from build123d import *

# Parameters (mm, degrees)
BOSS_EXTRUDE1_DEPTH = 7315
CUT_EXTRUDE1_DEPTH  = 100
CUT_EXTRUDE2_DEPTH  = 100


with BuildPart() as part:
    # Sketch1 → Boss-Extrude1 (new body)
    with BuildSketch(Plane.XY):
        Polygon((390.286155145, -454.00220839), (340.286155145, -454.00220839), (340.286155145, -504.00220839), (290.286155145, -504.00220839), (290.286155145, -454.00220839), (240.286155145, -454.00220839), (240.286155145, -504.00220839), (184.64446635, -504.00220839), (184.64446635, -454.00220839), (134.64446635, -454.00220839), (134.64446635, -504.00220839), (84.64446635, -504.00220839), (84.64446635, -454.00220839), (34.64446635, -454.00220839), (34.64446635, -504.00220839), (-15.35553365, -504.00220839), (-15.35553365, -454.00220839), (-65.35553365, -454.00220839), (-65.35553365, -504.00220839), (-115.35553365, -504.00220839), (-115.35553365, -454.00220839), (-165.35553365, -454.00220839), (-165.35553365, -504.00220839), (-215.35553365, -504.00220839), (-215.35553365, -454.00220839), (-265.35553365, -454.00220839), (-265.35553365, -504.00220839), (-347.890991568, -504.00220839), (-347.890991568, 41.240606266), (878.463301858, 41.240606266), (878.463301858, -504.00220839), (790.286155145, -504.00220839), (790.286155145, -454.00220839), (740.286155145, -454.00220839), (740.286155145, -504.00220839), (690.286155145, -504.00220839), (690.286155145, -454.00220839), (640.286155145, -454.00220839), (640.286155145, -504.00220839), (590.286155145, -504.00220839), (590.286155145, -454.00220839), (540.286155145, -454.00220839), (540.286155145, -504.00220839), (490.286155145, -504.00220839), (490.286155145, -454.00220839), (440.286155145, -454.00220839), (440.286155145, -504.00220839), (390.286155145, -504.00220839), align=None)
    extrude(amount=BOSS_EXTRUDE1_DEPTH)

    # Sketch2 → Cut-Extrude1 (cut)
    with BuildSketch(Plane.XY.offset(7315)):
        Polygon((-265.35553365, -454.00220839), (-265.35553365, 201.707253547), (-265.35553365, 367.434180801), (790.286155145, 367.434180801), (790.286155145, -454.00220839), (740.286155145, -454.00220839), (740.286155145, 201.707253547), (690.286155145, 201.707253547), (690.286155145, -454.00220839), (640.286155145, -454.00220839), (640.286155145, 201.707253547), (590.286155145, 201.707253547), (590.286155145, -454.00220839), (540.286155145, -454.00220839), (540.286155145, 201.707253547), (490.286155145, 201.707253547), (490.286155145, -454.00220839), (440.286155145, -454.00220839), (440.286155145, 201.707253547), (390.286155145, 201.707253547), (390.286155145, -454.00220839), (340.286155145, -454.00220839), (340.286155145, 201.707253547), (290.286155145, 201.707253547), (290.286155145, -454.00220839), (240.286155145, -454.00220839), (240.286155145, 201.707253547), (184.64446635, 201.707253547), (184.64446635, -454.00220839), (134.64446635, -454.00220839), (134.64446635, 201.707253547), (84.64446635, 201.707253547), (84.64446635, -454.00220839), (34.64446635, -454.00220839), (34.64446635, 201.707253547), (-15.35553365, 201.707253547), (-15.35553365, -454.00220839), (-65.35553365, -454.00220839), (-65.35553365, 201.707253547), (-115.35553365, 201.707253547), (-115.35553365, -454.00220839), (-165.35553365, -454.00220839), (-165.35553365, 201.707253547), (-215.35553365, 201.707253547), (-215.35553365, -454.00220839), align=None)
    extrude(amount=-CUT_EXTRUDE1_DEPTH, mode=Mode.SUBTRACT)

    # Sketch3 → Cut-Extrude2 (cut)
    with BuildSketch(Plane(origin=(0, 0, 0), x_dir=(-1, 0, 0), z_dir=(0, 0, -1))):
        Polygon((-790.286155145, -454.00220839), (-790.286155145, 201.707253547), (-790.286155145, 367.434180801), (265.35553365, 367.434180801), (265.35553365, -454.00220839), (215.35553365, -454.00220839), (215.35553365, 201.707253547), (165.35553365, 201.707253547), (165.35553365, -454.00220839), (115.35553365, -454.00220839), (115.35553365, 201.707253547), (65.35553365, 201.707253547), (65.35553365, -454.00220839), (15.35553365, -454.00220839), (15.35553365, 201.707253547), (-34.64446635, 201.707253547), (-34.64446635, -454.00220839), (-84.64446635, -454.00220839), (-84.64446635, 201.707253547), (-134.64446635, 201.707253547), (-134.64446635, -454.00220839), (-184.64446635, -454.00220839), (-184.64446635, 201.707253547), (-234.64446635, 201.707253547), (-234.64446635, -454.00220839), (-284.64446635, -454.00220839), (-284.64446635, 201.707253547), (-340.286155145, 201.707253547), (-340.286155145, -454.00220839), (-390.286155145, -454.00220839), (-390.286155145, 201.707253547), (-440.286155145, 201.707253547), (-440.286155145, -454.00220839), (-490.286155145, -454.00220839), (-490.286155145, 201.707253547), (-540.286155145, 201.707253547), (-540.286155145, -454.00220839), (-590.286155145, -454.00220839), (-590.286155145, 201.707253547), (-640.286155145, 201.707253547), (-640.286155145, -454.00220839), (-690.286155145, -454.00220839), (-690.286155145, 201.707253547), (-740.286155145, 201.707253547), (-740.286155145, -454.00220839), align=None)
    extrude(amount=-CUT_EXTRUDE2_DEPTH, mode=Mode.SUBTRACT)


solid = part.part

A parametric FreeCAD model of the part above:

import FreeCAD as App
import Part
import Sketcher
from FreeCAD import Vector


def add_polygon(sketch, points):
    """Adds a closed chain of lines whose ends are joined by coincident constraints."""
    first, n = sketch.GeometryCount, len(points)
    for a, b in zip(points, points[1:] + points[:1]):
        sketch.addGeometry(Part.LineSegment(App.Vector(*a, 0), App.Vector(*b, 0)), False)
    for i in range(n):
        sketch.addConstraint(Sketcher.Constraint("Coincident", first + i, 2, first + (i + 1) % n, 1))

doc = App.newDocument("Part")
body = doc.addObject("PartDesign::Body", "Body")

# Sketch on XY plane
sketch1 = doc.addObject("Sketcher::SketchObject", "Sketch")
body.addObject(sketch1)
sketch1.AttachmentSupport = (doc.XY_Plane, [""])
sketch1.MapMode = "FlatFace"
add_polygon(sketch1, [(340, -454), (390, -454), (390, -504), (440, -504), (440, -454), (490, -454), (490, -504), (540, -504), (540, -454), (590, -454), (590, -504), (640, -504), (640, -454), (690, -454), (690, -504), (740, -504), (740, -454), (790, -454), (790, -504), (878, -504), (878, 41), (-348, 41), (-348, -504), (-265, -504), (-265, -454), (-215, -454), (-215, -504), (-165, -504), (-165, -454), (-115, -454), (-115, -504), (-65, -504), (-65, -454), (-15, -454), (-15, -504), (35, -504), (35, -454), (85, -454), (85, -504), (135, -504), (135, -454), (185, -454), (185, -504), (240, -504), (240, -454), (290, -454), (290, -504), (340, -504)])  # lines 0-47
sketch1.addConstraint([
    Sketcher.Constraint("Horizontal", 0),
    Sketcher.Constraint("Vertical", 1),
    Sketcher.Constraint("Horizontal", 2),
    Sketcher.Constraint("Vertical", 3),
    Sketcher.Constraint("Horizontal", 4),
    Sketcher.Constraint("Vertical", 5),
    Sketcher.Constraint("Horizontal", 6),
    Sketcher.Constraint("Vertical", 7),
    Sketcher.Constraint("Horizontal", 8),
    Sketcher.Constraint("Vertical", 9),
    Sketcher.Constraint("Horizontal", 10),
    Sketcher.Constraint("Vertical", 11),
    Sketcher.Constraint("Horizontal", 12),
    Sketcher.Constraint("Vertical", 13),
    Sketcher.Constraint("Horizontal", 14),
    Sketcher.Constraint("Vertical", 15),
    Sketcher.Constraint("Horizontal", 16),
    Sketcher.Constraint("Vertical", 17),
    Sketcher.Constraint("Horizontal", 18),
    Sketcher.Constraint("Vertical", 19),
    Sketcher.Constraint("Horizontal", 20),
    Sketcher.Constraint("Vertical", 21),
    Sketcher.Constraint("Horizontal", 22),
    Sketcher.Constraint("Vertical", 23),
    Sketcher.Constraint("Horizontal", 24),
    Sketcher.Constraint("Vertical", 25),
    Sketcher.Constraint("Horizontal", 26),
    Sketcher.Constraint("Vertical", 27),
    Sketcher.Constraint("Horizontal", 28),
    Sketcher.Constraint("Vertical", 29),
    Sketcher.Constraint("Horizontal", 30),
    Sketcher.Constraint("Vertical", 31),
    Sketcher.Constraint("Horizontal", 32),
    Sketcher.Constraint("Vertical", 33),
    Sketcher.Constraint("Horizontal", 34),
    Sketcher.Constraint("Vertical", 35),
    Sketcher.Constraint("Horizontal", 36),
    Sketcher.Constraint("Vertical", 37),
    Sketcher.Constraint("Horizontal", 38),
    Sketcher.Constraint("Vertical", 39),
    Sketcher.Constraint("Horizontal", 40),
    Sketcher.Constraint("Vertical", 41),
    Sketcher.Constraint("Horizontal", 42),
    Sketcher.Constraint("Vertical", 43),
    Sketcher.Constraint("Horizontal", 44),
    Sketcher.Constraint("Vertical", 45),
    Sketcher.Constraint("Horizontal", 46),
    Sketcher.Constraint("Vertical", 47),
    Sketcher.Constraint("Horizontal", 0, 2, 3, 2),
    Sketcher.Constraint("Horizontal", 2, 2, 5, 2),
    Sketcher.Constraint("Horizontal", 4, 2, 7, 2),
    Sketcher.Constraint("Horizontal", 6, 2, 9, 2),
    Sketcher.Constraint("Horizontal", 8, 2, 11, 2),
    Sketcher.Constraint("Horizontal", 10, 2, 13, 2),
    Sketcher.Constraint("Horizontal", 12, 2, 15, 2),
    Sketcher.Constraint("Horizontal", 14, 2, 17, 2),
    Sketcher.Constraint("Horizontal", 18, 2, 21, 2),
    Sketcher.Constraint("Horizontal", 16, 2, 23, 2),
    Sketcher.Constraint("Horizontal", 22, 2, 25, 2),
    Sketcher.Constraint("Horizontal", 24, 2, 27, 2),
    Sketcher.Constraint("Horizontal", 26, 2, 29, 2),
    Sketcher.Constraint("Horizontal", 28, 2, 31, 2),
    Sketcher.Constraint("Horizontal", 30, 2, 33, 2),
    Sketcher.Constraint("Horizontal", 32, 2, 35, 2),
    Sketcher.Constraint("Horizontal", 34, 2, 37, 2),
    Sketcher.Constraint("Horizontal", 36, 2, 39, 2),
    Sketcher.Constraint("Horizontal", 38, 2, 41, 2),
    Sketcher.Constraint("Horizontal", 40, 2, 43, 2),
    Sketcher.Constraint("Horizontal", 42, 2, 45, 2),
    Sketcher.Constraint("Equal", 0, 2),
    Sketcher.Constraint("Equal", 2, 4),
    Sketcher.Constraint("Equal", 4, 6),
    Sketcher.Constraint("Equal", 6, 8),
    Sketcher.Constraint("Equal", 8, 10),
    Sketcher.Constraint("Equal", 10, 12),
    Sketcher.Constraint("Equal", 12, 14),
    Sketcher.Constraint("Equal", 14, 16),
    Sketcher.Constraint("Equal", 16, 24),
    Sketcher.Constraint("Equal", 24, 26),
    Sketcher.Constraint("Equal", 26, 28),
    Sketcher.Constraint("Equal", 28, 30),
    Sketcher.Constraint("Equal", 30, 32),
    Sketcher.Constraint("Equal", 32, 34),
    Sketcher.Constraint("Equal", 34, 36),
    Sketcher.Constraint("Equal", 36, 38),
    Sketcher.Constraint("Equal", 38, 40),
    Sketcher.Constraint("Equal", 40, 44),
    Sketcher.Constraint("Equal", 44, 46),
    Sketcher.Constraint("Equal", 46, 1),
    Sketcher.Constraint("DistanceX", 0, 1, 0, 2, 50.0),
    Sketcher.Constraint("DistanceX", 42, 1, 42, 2, 55.641689),
    Sketcher.Constraint("DistanceX", -1, 1, 18, 2, 878.463302),
    Sketcher.Constraint("DistanceX", 18, 1, 18, 2, 88.177147),
    Sketcher.Constraint("DistanceX", 20, 2, 20, 1, 1226.354293),
    Sketcher.Constraint("DistanceY", 19, 1, 19, 2, 545.242815),
    Sketcher.Constraint("DistanceY", 0, 2, -1, 1, 454.002208),
])
pad1 = doc.addObject("PartDesign::Pad", "Pad")
body.addObject(pad1)
pad1.Profile = sketch1
pad1.Length = 7315

# Sketch on XY plane
sketch2 = doc.addObject("Sketcher::SketchObject", "Sketch001")
body.addObject(sketch2)
sketch2.AttachmentSupport = (doc.XY_Plane, [""])
sketch2.MapMode = "FlatFace"
sketch2.AttachmentOffset = App.Placement(Vector(0, 0, 7315), App.Rotation())
add_polygon(sketch2, [(-265, 367), (-265, -454), (-215, -454), (-215, 202), (-165, 202), (-165, -454), (-115, -454), (-115, 202), (-65, 202), (-65, -454), (-15, -454), (-15, 202), (35, 202), (35, -454), (85, -454), (85, 202), (135, 202), (135, -454), (185, -454), (185, 202), (240, 202), (240, -454), (290, -454), (290, 202), (340, 202), (340, -454), (390, -454), (390, 202), (440, 202), (440, -454), (490, -454), (490, 202), (540, 202), (540, -454), (590, -454), (590, 202), (640, 202), (640, -454), (690, -454), (690, 202), (740, 202), (740, -454), (790, -454), (790, 367)])  # lines 0-43
sketch2.addConstraint([
    Sketcher.Constraint("Vertical", 0),
    Sketcher.Constraint("Horizontal", 1),
    Sketcher.Constraint("Vertical", 2),
    Sketcher.Constraint("Horizontal", 3),
    Sketcher.Constraint("Vertical", 4),
    Sketcher.Constraint("Horizontal", 5),
    Sketcher.Constraint("Vertical", 6),
    Sketcher.Constraint("Horizontal", 7),
    Sketcher.Constraint("Vertical", 8),
    Sketcher.Constraint("Horizontal", 9),
    Sketcher.Constraint("Vertical", 10),
    Sketcher.Constraint("Horizontal", 11),
    Sketcher.Constraint("Vertical", 12),
    Sketcher.Constraint("Horizontal", 13),
    Sketcher.Constraint("Vertical", 14),
    Sketcher.Constraint("Horizontal", 15),
    Sketcher.Constraint("Vertical", 16),
    Sketcher.Constraint("Horizontal", 17),
    Sketcher.Constraint("Vertical", 18),
    Sketcher.Constraint("Horizontal", 19),
    Sketcher.Constraint("Vertical", 20),
    Sketcher.Constraint("Horizontal", 21),
    Sketcher.Constraint("Vertical", 22),
    Sketcher.Constraint("Horizontal", 23),
    Sketcher.Constraint("Vertical", 24),
    Sketcher.Constraint("Horizontal", 25),
    Sketcher.Constraint("Vertical", 26),
    Sketcher.Constraint("Horizontal", 27),
    Sketcher.Constraint("Vertical", 28),
    Sketcher.Constraint("Horizontal", 29),
    Sketcher.Constraint("Vertical", 30),
    Sketcher.Constraint("Horizontal", 31),
    Sketcher.Constraint("Vertical", 32),
    Sketcher.Constraint("Horizontal", 33),
    Sketcher.Constraint("Vertical", 34),
    Sketcher.Constraint("Horizontal", 35),
    Sketcher.Constraint("Vertical", 36),
    Sketcher.Constraint("Horizontal", 37),
    Sketcher.Constraint("Vertical", 38),
    Sketcher.Constraint("Horizontal", 39),
    Sketcher.Constraint("Vertical", 40),
    Sketcher.Constraint("Horizontal", 41),
    Sketcher.Constraint("Vertical", 42),
    Sketcher.Constraint("Horizontal", 43),
    Sketcher.Constraint("Horizontal", 1, 2, 4, 2),
    Sketcher.Constraint("Horizontal", 3, 2, 6, 2),
    Sketcher.Constraint("Horizontal", 5, 2, 8, 2),
    Sketcher.Constraint("Horizontal", 7, 2, 10, 2),
    Sketcher.Constraint("Horizontal", 9, 2, 12, 2),
    Sketcher.Constraint("Horizontal", 11, 2, 14, 2),
    Sketcher.Constraint("Horizontal", 13, 2, 16, 2),
    Sketcher.Constraint("Horizontal", 15, 2, 18, 2),
    Sketcher.Constraint("Horizontal", 17, 2, 20, 2),
    Sketcher.Constraint("Horizontal", 19, 2, 22, 2),
    Sketcher.Constraint("Horizontal", 21, 2, 24, 2),
    Sketcher.Constraint("Horizontal", 23, 2, 26, 2),
    Sketcher.Constraint("Horizontal", 25, 2, 28, 2),
    Sketcher.Constraint("Horizontal", 27, 2, 30, 2),
    Sketcher.Constraint("Horizontal", 29, 2, 32, 2),
    Sketcher.Constraint("Horizontal", 31, 2, 34, 2),
    Sketcher.Constraint("Horizontal", 33, 2, 36, 2),
    Sketcher.Constraint("Horizontal", 35, 2, 38, 2),
    Sketcher.Constraint("Horizontal", 37, 2, 40, 2),
    Sketcher.Constraint("Equal", 1, 3),
    Sketcher.Constraint("Equal", 3, 5),
    Sketcher.Constraint("Equal", 5, 7),
    Sketcher.Constraint("Equal", 7, 9),
    Sketcher.Constraint("Equal", 9, 11),
    Sketcher.Constraint("Equal", 11, 13),
    Sketcher.Constraint("Equal", 13, 15),
    Sketcher.Constraint("Equal", 15, 17),
    Sketcher.Constraint("Equal", 17, 21),
    Sketcher.Constraint("Equal", 21, 23),
    Sketcher.Constraint("Equal", 23, 25),
    Sketcher.Constraint("Equal", 25, 27),
    Sketcher.Constraint("Equal", 27, 29),
    Sketcher.Constraint("Equal", 29, 31),
    Sketcher.Constraint("Equal", 31, 33),
    Sketcher.Constraint("Equal", 33, 35),
    Sketcher.Constraint("Equal", 35, 37),
    Sketcher.Constraint("Equal", 37, 39),
    Sketcher.Constraint("Equal", 39, 41),
    Sketcher.Constraint("DistanceX", 1, 1, 1, 2, 50.0),
    Sketcher.Constraint("DistanceX", 19, 1, 19, 2, 55.641689),
    Sketcher.Constraint("DistanceY", 0, 2, 0, 1, 821.436389),
    Sketcher.Constraint("DistanceY", 2, 1, 2, 2, 655.709462),
    Sketcher.Constraint("DistanceY", 0, 2, -1, 1, 454.002208),
    Sketcher.Constraint("DistanceX", 0, 2, -1, 1, 265.355534),
])
pocket1 = doc.addObject("PartDesign::Pocket", "Pocket")
body.addObject(pocket1)
pocket1.Profile = sketch2
pocket1.Length = 100

# Sketch on XY plane
sketch3 = doc.addObject("Sketcher::SketchObject", "Sketch002")
body.addObject(sketch3)
sketch3.AttachmentSupport = (doc.XY_Plane, [""])
sketch3.MapMode = "FlatFace"
add_polygon(sketch3, [(790, 367), (790, -454), (740, -454), (740, 202), (690, 202), (690, -454), (640, -454), (640, 202), (590, 202), (590, -454), (540, -454), (540, 202), (490, 202), (490, -454), (440, -454), (440, 202), (390, 202), (390, -454), (340, -454), (340, 202), (285, 202), (285, -454), (235, -454), (235, 202), (185, 202), (185, -454), (135, -454), (135, 202), (85, 202), (85, -454), (35, -454), (35, 202), (-15, 202), (-15, -454), (-65, -454), (-65, 202), (-115, 202), (-115, -454), (-165, -454), (-165, 202), (-215, 202), (-215, -454), (-265, -454), (-265, 367)])  # lines 0-43
sketch3.addConstraint([
    Sketcher.Constraint("Vertical", 0),
    Sketcher.Constraint("Horizontal", 1),
    Sketcher.Constraint("Vertical", 2),
    Sketcher.Constraint("Horizontal", 3),
    Sketcher.Constraint("Vertical", 4),
    Sketcher.Constraint("Horizontal", 5),
    Sketcher.Constraint("Vertical", 6),
    Sketcher.Constraint("Horizontal", 7),
    Sketcher.Constraint("Vertical", 8),
    Sketcher.Constraint("Horizontal", 9),
    Sketcher.Constraint("Vertical", 10),
    Sketcher.Constraint("Horizontal", 11),
    Sketcher.Constraint("Vertical", 12),
    Sketcher.Constraint("Horizontal", 13),
    Sketcher.Constraint("Vertical", 14),
    Sketcher.Constraint("Horizontal", 15),
    Sketcher.Constraint("Vertical", 16),
    Sketcher.Constraint("Horizontal", 17),
    Sketcher.Constraint("Vertical", 18),
    Sketcher.Constraint("Horizontal", 19),
    Sketcher.Constraint("Vertical", 20),
    Sketcher.Constraint("Horizontal", 21),
    Sketcher.Constraint("Vertical", 22),
    Sketcher.Constraint("Horizontal", 23),
    Sketcher.Constraint("Vertical", 24),
    Sketcher.Constraint("Horizontal", 25),
    Sketcher.Constraint("Vertical", 26),
    Sketcher.Constraint("Horizontal", 27),
    Sketcher.Constraint("Vertical", 28),
    Sketcher.Constraint("Horizontal", 29),
    Sketcher.Constraint("Vertical", 30),
    Sketcher.Constraint("Horizontal", 31),
    Sketcher.Constraint("Vertical", 32),
    Sketcher.Constraint("Horizontal", 33),
    Sketcher.Constraint("Vertical", 34),
    Sketcher.Constraint("Horizontal", 35),
    Sketcher.Constraint("Vertical", 36),
    Sketcher.Constraint("Horizontal", 37),
    Sketcher.Constraint("Vertical", 38),
    Sketcher.Constraint("Horizontal", 39),
    Sketcher.Constraint("Vertical", 40),
    Sketcher.Constraint("Horizontal", 41),
    Sketcher.Constraint("Vertical", 42),
    Sketcher.Constraint("Horizontal", 43),
    Sketcher.Constraint("Horizontal", 1, 2, 4, 2),
    Sketcher.Constraint("Horizontal", 3, 2, 6, 2),
    Sketcher.Constraint("Horizontal", 5, 2, 8, 2),
    Sketcher.Constraint("Horizontal", 7, 2, 10, 2),
    Sketcher.Constraint("Horizontal", 9, 2, 12, 2),
    Sketcher.Constraint("Horizontal", 11, 2, 14, 2),
    Sketcher.Constraint("Horizontal", 13, 2, 16, 2),
    Sketcher.Constraint("Horizontal", 15, 2, 18, 2),
    Sketcher.Constraint("Horizontal", 17, 2, 20, 2),
    Sketcher.Constraint("Horizontal", 19, 2, 22, 2),
    Sketcher.Constraint("Horizontal", 21, 2, 24, 2),
    Sketcher.Constraint("Horizontal", 23, 2, 26, 2),
    Sketcher.Constraint("Horizontal", 25, 2, 28, 2),
    Sketcher.Constraint("Horizontal", 27, 2, 30, 2),
    Sketcher.Constraint("Horizontal", 29, 2, 32, 2),
    Sketcher.Constraint("Horizontal", 31, 2, 34, 2),
    Sketcher.Constraint("Horizontal", 33, 2, 36, 2),
    Sketcher.Constraint("Horizontal", 35, 2, 38, 2),
    Sketcher.Constraint("Horizontal", 37, 2, 40, 2),
    Sketcher.Constraint("Equal", 1, 3),
    Sketcher.Constraint("Equal", 3, 5),
    Sketcher.Constraint("Equal", 5, 7),
    Sketcher.Constraint("Equal", 7, 9),
    Sketcher.Constraint("Equal", 9, 11),
    Sketcher.Constraint("Equal", 11, 13),
    Sketcher.Constraint("Equal", 13, 15),
    Sketcher.Constraint("Equal", 15, 17),
    Sketcher.Constraint("Equal", 17, 21),
    Sketcher.Constraint("Equal", 21, 23),
    Sketcher.Constraint("Equal", 23, 25),
    Sketcher.Constraint("Equal", 25, 27),
    Sketcher.Constraint("Equal", 27, 29),
    Sketcher.Constraint("Equal", 29, 31),
    Sketcher.Constraint("Equal", 31, 33),
    Sketcher.Constraint("Equal", 33, 35),
    Sketcher.Constraint("Equal", 35, 37),
    Sketcher.Constraint("Equal", 37, 39),
    Sketcher.Constraint("Equal", 39, 41),
    Sketcher.Constraint("DistanceX", 1, 2, 1, 1, 50.0),
    Sketcher.Constraint("DistanceX", 19, 2, 19, 1, 55.641689),
    Sketcher.Constraint("DistanceY", 0, 2, 0, 1, 821.436389),
    Sketcher.Constraint("DistanceY", 2, 1, 2, 2, 655.709462),
    Sketcher.Constraint("DistanceY", 0, 2, -1, 1, 454.002208),
    Sketcher.Constraint("DistanceX", -1, 1, 0, 2, 790.286155),
])
pocket2 = doc.addObject("PartDesign::Pocket", "Pocket001")
body.addObject(pocket2)
pocket2.Profile = sketch3
pocket2.Length = 100
pocket2.Reversed = True

doc.recompute()
